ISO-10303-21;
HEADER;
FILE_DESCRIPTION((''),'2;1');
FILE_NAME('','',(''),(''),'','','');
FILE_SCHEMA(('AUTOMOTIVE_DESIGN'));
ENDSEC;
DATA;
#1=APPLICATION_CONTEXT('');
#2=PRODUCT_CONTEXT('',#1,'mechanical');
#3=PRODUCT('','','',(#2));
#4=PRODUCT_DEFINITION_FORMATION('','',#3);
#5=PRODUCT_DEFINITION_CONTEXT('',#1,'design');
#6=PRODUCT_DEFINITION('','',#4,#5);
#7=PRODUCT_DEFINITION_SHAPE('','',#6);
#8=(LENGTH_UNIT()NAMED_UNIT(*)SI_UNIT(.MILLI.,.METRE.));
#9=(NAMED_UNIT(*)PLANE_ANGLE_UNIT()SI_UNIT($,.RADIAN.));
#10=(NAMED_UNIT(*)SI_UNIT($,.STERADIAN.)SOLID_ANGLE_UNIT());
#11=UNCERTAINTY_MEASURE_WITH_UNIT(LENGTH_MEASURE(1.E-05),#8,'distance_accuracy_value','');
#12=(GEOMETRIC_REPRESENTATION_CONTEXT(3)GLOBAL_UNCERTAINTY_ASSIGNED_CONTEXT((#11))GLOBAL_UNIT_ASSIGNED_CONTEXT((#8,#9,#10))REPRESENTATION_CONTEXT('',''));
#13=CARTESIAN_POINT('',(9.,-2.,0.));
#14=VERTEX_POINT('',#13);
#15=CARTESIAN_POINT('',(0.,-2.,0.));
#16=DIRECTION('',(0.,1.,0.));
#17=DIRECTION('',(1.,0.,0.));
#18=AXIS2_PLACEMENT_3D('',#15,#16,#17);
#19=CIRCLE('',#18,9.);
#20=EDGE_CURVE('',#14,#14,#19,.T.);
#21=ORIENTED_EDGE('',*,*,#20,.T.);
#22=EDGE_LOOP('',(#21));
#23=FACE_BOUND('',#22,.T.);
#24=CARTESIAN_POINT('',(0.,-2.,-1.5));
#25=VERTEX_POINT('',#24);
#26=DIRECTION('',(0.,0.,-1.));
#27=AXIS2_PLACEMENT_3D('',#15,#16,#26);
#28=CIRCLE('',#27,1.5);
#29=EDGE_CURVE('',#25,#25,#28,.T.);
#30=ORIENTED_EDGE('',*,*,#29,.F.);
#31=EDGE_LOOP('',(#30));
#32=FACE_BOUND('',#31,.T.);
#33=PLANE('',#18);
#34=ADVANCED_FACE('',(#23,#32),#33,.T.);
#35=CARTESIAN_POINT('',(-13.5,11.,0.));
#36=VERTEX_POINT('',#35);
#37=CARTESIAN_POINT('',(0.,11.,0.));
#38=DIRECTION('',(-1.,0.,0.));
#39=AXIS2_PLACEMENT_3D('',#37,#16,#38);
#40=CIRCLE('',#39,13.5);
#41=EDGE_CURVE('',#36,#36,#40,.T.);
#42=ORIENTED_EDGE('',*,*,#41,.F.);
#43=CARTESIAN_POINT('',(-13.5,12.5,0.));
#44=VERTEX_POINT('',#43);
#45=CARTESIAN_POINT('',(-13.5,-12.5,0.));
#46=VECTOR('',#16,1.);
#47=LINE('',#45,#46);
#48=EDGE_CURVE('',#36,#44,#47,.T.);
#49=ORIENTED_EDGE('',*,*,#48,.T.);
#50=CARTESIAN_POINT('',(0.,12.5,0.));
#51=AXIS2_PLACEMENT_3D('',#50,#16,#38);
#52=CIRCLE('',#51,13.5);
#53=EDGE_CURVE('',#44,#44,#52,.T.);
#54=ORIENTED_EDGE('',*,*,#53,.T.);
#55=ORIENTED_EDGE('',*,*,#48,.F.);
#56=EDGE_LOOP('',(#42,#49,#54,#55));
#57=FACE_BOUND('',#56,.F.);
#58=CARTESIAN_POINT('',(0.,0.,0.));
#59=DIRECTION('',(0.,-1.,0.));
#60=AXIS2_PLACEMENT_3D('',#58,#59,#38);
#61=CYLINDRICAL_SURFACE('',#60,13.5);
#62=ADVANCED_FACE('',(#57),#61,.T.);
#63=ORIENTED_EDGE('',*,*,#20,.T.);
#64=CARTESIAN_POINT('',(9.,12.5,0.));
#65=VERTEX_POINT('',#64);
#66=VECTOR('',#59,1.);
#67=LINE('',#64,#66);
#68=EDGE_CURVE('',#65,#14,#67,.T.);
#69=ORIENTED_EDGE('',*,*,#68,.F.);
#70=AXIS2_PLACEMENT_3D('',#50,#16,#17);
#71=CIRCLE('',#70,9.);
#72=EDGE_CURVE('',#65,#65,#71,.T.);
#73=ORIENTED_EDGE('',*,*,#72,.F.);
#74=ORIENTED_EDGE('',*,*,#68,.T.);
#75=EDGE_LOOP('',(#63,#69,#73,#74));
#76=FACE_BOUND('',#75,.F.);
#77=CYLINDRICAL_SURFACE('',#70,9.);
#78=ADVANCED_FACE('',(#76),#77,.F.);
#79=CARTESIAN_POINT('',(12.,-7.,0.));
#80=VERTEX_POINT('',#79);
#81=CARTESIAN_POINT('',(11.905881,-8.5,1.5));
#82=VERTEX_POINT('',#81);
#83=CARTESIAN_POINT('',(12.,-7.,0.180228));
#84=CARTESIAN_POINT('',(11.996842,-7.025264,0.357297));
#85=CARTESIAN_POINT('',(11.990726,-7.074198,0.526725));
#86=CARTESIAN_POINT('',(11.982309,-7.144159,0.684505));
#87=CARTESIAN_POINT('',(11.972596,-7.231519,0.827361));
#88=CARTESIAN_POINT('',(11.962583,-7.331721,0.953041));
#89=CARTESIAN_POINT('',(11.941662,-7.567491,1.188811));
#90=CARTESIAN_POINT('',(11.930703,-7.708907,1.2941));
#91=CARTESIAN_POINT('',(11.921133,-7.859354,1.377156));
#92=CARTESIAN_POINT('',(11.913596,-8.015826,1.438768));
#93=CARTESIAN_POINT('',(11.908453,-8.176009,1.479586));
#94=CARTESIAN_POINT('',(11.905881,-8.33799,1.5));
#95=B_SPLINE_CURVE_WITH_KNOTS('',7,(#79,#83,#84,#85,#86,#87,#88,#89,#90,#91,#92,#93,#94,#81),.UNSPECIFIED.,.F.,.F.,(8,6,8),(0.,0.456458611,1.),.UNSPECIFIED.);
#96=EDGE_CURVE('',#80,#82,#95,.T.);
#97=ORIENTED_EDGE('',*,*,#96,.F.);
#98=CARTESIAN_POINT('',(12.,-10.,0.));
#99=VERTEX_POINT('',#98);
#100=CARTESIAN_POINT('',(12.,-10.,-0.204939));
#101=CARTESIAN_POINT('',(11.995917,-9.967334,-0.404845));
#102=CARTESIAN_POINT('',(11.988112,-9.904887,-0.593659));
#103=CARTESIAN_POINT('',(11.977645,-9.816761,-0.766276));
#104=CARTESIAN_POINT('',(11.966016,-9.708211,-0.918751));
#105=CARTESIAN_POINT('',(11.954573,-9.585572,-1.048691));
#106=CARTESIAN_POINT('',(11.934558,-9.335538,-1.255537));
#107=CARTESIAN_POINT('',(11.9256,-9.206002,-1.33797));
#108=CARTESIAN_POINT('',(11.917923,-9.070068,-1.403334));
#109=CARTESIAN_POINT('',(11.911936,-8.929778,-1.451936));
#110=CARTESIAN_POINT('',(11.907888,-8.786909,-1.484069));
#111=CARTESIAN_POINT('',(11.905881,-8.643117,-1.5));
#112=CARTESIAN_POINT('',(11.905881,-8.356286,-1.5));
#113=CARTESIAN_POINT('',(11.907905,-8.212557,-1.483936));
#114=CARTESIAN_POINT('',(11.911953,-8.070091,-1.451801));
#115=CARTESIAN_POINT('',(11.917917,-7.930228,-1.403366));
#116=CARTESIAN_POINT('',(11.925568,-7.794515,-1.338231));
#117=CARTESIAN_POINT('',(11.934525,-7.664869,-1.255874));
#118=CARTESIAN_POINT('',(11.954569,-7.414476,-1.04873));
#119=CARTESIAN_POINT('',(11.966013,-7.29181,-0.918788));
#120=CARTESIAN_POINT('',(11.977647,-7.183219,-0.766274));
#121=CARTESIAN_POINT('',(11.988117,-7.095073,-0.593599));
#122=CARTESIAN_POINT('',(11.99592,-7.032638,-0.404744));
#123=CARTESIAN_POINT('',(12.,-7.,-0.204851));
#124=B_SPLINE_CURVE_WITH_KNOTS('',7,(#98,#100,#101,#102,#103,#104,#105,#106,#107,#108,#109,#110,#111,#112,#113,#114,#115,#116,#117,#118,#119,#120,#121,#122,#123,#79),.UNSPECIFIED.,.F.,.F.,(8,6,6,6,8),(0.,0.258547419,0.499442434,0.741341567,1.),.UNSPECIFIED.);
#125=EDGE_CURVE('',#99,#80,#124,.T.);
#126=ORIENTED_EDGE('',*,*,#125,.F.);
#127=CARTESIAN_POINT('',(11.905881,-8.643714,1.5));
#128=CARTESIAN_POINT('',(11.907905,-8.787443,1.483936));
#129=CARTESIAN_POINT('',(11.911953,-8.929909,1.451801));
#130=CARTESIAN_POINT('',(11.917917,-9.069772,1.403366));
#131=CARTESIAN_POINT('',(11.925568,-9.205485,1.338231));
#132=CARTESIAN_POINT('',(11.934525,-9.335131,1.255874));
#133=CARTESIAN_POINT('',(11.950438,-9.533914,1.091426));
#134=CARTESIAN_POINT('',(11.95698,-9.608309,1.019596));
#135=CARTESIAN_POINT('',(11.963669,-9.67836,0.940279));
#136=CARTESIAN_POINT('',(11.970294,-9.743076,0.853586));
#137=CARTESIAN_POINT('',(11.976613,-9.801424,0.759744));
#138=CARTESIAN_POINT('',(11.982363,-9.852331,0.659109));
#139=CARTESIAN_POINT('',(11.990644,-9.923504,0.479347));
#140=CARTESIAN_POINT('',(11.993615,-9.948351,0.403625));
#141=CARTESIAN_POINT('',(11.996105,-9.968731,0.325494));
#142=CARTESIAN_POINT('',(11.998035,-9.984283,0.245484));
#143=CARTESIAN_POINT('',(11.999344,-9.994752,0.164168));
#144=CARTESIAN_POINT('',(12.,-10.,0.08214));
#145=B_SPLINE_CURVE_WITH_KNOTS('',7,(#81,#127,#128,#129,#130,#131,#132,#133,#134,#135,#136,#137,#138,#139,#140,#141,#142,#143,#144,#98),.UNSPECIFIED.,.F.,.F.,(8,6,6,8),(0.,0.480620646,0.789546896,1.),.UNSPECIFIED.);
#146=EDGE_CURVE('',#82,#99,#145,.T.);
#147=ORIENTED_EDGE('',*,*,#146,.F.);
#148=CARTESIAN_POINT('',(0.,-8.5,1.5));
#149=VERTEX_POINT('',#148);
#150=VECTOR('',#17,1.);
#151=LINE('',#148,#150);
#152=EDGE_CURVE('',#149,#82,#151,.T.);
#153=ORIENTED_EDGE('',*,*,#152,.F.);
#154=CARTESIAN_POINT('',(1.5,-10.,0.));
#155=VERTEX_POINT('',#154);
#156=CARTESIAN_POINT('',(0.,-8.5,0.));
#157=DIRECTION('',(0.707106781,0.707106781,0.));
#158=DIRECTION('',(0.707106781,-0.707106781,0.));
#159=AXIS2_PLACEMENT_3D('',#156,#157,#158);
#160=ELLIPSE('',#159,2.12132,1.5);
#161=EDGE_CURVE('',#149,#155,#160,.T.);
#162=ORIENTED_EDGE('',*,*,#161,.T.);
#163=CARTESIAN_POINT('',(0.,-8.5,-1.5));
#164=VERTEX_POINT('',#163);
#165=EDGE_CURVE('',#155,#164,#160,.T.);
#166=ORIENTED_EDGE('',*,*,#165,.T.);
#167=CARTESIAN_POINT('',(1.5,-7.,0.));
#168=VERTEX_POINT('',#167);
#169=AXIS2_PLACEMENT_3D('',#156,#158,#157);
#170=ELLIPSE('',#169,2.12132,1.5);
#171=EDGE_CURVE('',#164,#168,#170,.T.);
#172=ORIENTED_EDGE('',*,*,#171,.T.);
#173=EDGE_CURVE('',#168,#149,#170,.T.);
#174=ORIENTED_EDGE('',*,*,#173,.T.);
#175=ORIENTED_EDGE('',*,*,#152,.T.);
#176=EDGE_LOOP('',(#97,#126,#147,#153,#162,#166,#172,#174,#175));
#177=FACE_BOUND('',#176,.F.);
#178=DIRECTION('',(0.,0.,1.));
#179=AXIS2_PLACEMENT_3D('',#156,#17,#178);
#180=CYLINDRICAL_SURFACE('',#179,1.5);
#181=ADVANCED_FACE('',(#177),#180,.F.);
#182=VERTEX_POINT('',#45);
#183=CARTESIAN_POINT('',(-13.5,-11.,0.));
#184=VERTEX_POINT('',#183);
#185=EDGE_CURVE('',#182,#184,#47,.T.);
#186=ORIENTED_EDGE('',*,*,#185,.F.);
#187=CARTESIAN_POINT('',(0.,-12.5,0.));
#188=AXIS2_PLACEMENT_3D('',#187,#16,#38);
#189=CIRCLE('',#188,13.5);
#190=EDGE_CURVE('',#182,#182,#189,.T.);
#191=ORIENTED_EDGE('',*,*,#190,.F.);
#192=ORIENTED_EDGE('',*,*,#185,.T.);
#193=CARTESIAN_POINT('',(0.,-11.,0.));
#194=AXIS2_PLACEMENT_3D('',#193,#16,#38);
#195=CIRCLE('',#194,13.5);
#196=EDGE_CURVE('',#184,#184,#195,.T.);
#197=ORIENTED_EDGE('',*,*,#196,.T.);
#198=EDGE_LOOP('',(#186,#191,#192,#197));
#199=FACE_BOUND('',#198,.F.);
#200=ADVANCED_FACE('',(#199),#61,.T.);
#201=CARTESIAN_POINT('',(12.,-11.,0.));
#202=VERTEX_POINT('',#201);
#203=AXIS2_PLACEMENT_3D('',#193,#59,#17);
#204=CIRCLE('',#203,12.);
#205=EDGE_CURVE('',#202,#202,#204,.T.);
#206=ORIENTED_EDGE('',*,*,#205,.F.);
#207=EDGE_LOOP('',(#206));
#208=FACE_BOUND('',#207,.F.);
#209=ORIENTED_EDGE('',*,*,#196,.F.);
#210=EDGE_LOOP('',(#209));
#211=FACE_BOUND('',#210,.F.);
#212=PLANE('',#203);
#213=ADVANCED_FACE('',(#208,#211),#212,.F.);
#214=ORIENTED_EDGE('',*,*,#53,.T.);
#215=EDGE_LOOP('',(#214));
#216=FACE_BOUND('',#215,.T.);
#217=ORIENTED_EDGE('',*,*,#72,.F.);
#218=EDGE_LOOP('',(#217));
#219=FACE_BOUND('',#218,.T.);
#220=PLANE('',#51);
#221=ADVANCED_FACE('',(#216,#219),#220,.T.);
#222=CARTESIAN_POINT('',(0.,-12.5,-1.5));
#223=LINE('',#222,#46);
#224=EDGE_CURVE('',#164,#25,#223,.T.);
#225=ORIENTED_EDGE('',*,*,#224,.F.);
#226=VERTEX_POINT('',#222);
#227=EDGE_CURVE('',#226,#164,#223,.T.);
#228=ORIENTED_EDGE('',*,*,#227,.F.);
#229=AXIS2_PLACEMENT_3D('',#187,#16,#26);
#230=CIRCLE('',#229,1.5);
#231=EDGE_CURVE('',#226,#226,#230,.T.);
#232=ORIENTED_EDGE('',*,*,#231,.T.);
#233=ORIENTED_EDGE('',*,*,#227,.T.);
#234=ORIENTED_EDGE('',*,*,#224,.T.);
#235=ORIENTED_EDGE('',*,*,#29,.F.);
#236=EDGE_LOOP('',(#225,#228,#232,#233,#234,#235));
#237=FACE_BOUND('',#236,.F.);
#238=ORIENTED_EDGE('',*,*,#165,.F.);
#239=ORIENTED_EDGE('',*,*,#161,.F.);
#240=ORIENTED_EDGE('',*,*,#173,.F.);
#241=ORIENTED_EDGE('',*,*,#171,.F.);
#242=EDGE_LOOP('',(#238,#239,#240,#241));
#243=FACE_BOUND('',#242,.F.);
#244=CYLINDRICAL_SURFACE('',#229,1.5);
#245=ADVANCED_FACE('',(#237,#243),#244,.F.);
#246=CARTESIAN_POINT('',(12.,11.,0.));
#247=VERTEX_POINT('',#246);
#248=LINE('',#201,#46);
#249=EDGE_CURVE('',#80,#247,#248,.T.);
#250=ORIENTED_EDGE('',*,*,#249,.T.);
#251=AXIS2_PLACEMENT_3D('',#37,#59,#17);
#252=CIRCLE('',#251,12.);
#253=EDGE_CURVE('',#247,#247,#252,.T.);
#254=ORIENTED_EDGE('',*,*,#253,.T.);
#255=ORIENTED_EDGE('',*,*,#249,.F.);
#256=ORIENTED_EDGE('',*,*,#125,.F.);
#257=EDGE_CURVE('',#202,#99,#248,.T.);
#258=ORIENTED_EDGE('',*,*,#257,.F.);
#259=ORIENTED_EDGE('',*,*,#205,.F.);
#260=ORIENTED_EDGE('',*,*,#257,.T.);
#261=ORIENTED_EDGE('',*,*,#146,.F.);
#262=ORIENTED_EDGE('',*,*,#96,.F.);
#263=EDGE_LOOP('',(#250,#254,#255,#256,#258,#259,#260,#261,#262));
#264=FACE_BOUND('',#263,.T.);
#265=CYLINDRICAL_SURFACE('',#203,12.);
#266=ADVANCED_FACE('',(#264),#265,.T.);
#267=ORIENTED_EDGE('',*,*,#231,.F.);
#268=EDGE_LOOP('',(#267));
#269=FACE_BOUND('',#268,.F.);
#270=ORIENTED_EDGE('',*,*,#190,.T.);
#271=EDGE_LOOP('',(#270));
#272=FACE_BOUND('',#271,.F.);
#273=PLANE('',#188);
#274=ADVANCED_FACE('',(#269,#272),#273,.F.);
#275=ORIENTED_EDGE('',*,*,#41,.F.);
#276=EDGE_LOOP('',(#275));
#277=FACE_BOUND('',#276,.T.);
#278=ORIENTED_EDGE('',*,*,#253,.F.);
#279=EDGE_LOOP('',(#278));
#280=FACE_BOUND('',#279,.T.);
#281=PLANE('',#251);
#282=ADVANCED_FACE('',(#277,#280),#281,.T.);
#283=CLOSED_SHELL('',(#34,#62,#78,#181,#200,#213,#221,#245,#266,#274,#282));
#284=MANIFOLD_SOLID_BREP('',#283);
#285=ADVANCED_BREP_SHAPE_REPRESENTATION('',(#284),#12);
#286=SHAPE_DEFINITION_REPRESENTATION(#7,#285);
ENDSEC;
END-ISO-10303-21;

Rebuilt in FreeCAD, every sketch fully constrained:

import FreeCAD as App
import Part
import Sketcher

doc = App.newDocument("Part")
body = doc.addObject("PartDesign::Body", "Body")

sketch1 = doc.addObject("Sketcher::SketchObject", "Sketch")
body.addObject(sketch1)
sketch1.AttachmentSupport = (doc.XZ_Plane, [""])
sketch1.MapMode = "FlatFace"
sketch1.addGeometry(Part.Circle(App.Vector(0, 0, 0), App.Vector(0, 0, 1), 13.5), False)
sketch1.addConstraint([
    Sketcher.Constraint("Coincident", 0, 3, -1, 1),
    Sketcher.Constraint("Diameter", 0, 27.0),
])
pad1 = doc.addObject("PartDesign::Pad", "Pad")
body.addObject(pad1)
pad1.Profile = sketch1
pad1.Length = 25
pad1.Midplane = True

sketch2 = doc.addObject("Sketcher::SketchObject", "Sketch001")
body.addObject(sketch2)
sketch2.AttachmentSupport = (doc.YZ_Plane, [""])
sketch2.MapMode = "FlatFace"
sketch2.addGeometry(Part.Circle(App.Vector(-8.5, 0, 0), App.Vector(0, 0, 1), 1.5), False)
sketch2.addConstraint([
    Sketcher.Constraint("PointOnObject", 0, 3, -1),
    Sketcher.Constraint("Diameter", 0, 3.0),
    Sketcher.Constraint("DistanceX", 0, 3, -1, 1, 8.5),
])
doc.recompute()
hole = doc.addObject("PartDesign::Hole", "Hole")
body.addObject(hole)
hole.Profile = sketch2
hole.ThreadType = "None"
hole.Diameter = 3
hole.DepthType = "ThroughAll"
hole.Reversed = True

sketch3 = doc.addObject("Sketcher::SketchObject", "Sketch002")
body.addObject(sketch3)
sketch3.AttachmentSupport = (doc.XZ_Plane, [""])
sketch3.MapMode = "FlatFace"
sketch3.addGeometry([
    Part.Circle(App.Vector(0, 0, 0), App.Vector(0, 0, 1), 16.5),
    Part.Circle(App.Vector(0, 0, 0), App.Vector(0, 0, 1), 13.5),
], False)
sketch3.addConstraint([
    Sketcher.Constraint("Coincident", 0, 3, -1, 1),
    Sketcher.Constraint("Coincident", 1, 3, -1, 1),
    Sketcher.Constraint("Diameter", 0, 33.0),
    Sketcher.Constraint("Diameter", 1, 27.0),
])
pad2 = doc.addObject("PartDesign::Pad", "Pad001")
body.addObject(pad2)
pad2.Profile = sketch3
pad2.Length = 22
pad2.Midplane = True

sketch4 = doc.addObject("Sketcher::SketchObject", "Sketch003")
body.addObject(sketch4)
sketch4.AttachmentSupport = (doc.XZ_Plane, [""])
sketch4.MapMode = "FlatFace"
sketch4.AttachmentOffset = App.Placement(App.Vector(0, 0, -12.5), App.Rotation())
sketch4.addGeometry(Part.Circle(App.Vector(0, 0, 0), App.Vector(0, 0, 1), 9), False)
sketch4.addConstraint([
    Sketcher.Constraint("Coincident", 0, 3, -1, 1),
    Sketcher.Constraint("Diameter", 0, 18.0),
])
pocket1 = doc.addObject("PartDesign::Pocket", "Pocket")
body.addObject(pocket1)
pocket1.Profile = sketch4
pocket1.Length = 14.5
pocket1.Reversed = True

sketch5 = doc.addObject("Sketcher::SketchObject", "Sketch004")
body.addObject(sketch5)
sketch5.AttachmentSupport = (doc.XZ_Plane, [""])
sketch5.MapMode = "FlatFace"
sketch5.AttachmentOffset = App.Placement(App.Vector(0, 0, 12.5), App.Rotation())
sketch5.addGeometry(Part.Circle(App.Vector(0, 0, 0), App.Vector(0, 0, 1), 1.5), False)
sketch5.addConstraint([
    Sketcher.Constraint("Coincident", 0, 3, -1, 1),
    Sketcher.Constraint("Diameter", 0, 3.0),
])
doc.recompute()
hole2 = doc.addObject("PartDesign::Hole", "Hole001")
body.addObject(hole2)
hole2.Profile = sketch5
hole2.ThreadType = "None"
hole2.Diameter = 3
hole2.DepthType = "ThroughAll"

sketch6 = doc.addObject("Sketcher::SketchObject", "Sketch005")
body.addObject(sketch6)
sketch6.AttachmentSupport = (doc.XZ_Plane, [""])
sketch6.MapMode = "FlatFace"
sketch6.AttachmentOffset = App.Placement(App.Vector(0, 0, 11), App.Rotation())
sketch6.addGeometry([
    Part.Circle(App.Vector(0, 0, 0), App.Vector(0, 0, 1), 16.5),
    Part.Circle(App.Vector(0, 0, 0), App.Vector(0, 0, 1), 12),
], False)
sketch6.addConstraint([
    Sketcher.Constraint("Coincident", 0, 3, -1, 1),
    Sketcher.Constraint("Coincident", 1, 3, -1, 1),
    Sketcher.Constraint("Diameter", 1, 24.0),
    Sketcher.Constraint("Diameter", 0, 33.0),
])
pocket2 = doc.addObject("PartDesign::Pocket", "Pocket001")
body.addObject(pocket2)
pocket2.Profile = sketch6
pocket2.Length = 22

doc.recompute()
